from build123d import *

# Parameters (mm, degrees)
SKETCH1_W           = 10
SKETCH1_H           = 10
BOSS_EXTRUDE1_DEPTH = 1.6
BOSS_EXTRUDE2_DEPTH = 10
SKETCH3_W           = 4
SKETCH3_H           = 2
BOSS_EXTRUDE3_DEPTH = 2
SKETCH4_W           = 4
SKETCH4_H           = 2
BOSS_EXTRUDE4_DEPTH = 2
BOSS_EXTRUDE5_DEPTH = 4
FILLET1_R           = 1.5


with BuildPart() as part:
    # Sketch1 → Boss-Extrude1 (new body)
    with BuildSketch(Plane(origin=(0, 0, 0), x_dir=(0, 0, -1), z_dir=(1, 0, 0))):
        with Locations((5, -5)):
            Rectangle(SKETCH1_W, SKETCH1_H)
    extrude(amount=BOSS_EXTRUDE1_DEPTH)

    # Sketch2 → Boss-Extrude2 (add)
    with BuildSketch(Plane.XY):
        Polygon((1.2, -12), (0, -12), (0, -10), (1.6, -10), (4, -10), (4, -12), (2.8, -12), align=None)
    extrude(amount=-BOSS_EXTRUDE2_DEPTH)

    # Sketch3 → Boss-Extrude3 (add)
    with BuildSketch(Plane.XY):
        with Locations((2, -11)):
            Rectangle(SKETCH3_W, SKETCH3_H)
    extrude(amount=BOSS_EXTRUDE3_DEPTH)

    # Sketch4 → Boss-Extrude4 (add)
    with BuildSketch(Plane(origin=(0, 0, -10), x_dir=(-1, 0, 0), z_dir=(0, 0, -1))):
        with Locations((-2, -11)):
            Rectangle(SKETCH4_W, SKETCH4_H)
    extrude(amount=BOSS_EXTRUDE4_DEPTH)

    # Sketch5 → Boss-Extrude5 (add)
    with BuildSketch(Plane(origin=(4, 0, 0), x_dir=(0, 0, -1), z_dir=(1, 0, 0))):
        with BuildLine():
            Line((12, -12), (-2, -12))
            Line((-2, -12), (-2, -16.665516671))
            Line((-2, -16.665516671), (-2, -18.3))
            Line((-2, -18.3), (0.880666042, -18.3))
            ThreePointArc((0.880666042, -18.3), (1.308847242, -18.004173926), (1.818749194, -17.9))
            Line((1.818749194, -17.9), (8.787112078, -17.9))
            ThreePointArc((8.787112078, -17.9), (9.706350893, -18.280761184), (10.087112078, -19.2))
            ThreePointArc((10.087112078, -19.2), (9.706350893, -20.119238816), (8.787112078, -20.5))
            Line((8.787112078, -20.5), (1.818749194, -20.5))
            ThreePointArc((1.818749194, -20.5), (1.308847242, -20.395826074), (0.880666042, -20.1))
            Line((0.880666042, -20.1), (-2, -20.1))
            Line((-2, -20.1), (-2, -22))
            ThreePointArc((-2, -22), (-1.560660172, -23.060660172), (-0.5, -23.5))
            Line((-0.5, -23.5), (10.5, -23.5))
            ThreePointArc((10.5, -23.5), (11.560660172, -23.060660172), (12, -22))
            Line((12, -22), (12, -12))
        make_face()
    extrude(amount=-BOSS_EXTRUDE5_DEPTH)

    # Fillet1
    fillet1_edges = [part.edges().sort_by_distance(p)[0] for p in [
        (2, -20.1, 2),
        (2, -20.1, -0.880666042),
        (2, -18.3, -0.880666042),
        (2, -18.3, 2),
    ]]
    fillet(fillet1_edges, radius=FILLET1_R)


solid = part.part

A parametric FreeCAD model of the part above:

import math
import FreeCAD as App
import Part
import Sketcher


def edges_at(feature, points):
    """Names of the edges that pass closest to the given points."""
    edges = feature.Shape.Edges
    near = lambda p: min(range(len(edges)), key=lambda i: edges[i].distToShape(Part.Vertex(*p))[0])
    return sorted({f"Edge{near(p) + 1}" for p in points})

doc = App.newDocument("Part")
params = doc.addObject("Spreadsheet::Sheet", "Params")
for row, (alias, value) in enumerate([
    ("sketch1_width", "10 mm"),
    ("pad1_length", "1.6 mm"),
    ("sketch2_width", "4 mm"),
    ("sketch2_height", "2 mm"),
    ("pad2_length", "10 mm"),
    ("sketch3_width", "4 mm"),
    ("sketch3_height", "2 mm"),
    ("pad3_length", "2 mm"),
    ("sketch4_width", "4 mm"),
    ("sketch4_height", "2 mm"),
    ("pad4_length", "2 mm"),
    ("sketch5_radius", "1.3 mm"),
    ("sketch5_radius2", "1.5 mm"),
    ("sketch5_width", "10 mm"),
    ("sketch5_height", "14 mm"),
    ("sketch5_width2", "6.3 mm"),
    ("pad5_length", "4 mm"),
    ("fillet_radius", "1.5 mm"),
], start=1):
    params.set(f"A{row}", alias)
    params.set(f"B{row}", "=" + value)
    params.setAlias(f"B{row}", alias)

body = doc.addObject("PartDesign::Body", "Body")

# Sketch on YZ plane
sketch1 = body.newObject("Sketcher::SketchObject", "Sketch")
sketch1.AttachmentSupport = (doc.getObject("YZ_Plane"), [""])
sketch1.MapMode = "FlatFace"
sketch1.addGeometry([
    Part.LineSegment(App.Vector(0, 0, 0), App.Vector(-10, 0, 0)),
    Part.LineSegment(App.Vector(-10, 0, 0), App.Vector(-10, -10, 0)),
    Part.LineSegment(App.Vector(-10, -10, 0), App.Vector(0, -10, 0)),
    Part.LineSegment(App.Vector(0, -10, 0), App.Vector(0, 0, 0)),
], False)
sketch1.addConstraint([
    Sketcher.Constraint("Coincident", 0, 2, 1, 1),
    Sketcher.Constraint("Coincident", 1, 2, 2, 1),
    Sketcher.Constraint("Coincident", 2, 2, 3, 1),
    Sketcher.Constraint("Coincident", 3, 2, 0, 1),
    Sketcher.Constraint("Horizontal", 0),
    Sketcher.Constraint("Vertical", 1),
    Sketcher.Constraint("Horizontal", 2),
    Sketcher.Constraint("Vertical", 3),
    Sketcher.Constraint("Coincident", 3, 2, -1, 1),
    Sketcher.Constraint("Equal", 2, 1),
    Sketcher.Constraint("DistanceX", 0, 2, 0, 1, 10.0),
])
sketch1.setExpression("Constraints[10]", "Params.sketch1_width")
pad1 = body.newObject("PartDesign::Pad", "Pad")
pad1.Profile = sketch1
pad1.setExpression("Length", "Params.pad1_length")

# Sketch on XY plane
sketch2 = body.newObject("Sketcher::SketchObject", "Sketch001")
sketch2.AttachmentSupport = (doc.getObject("XY_Plane"), [""])
sketch2.MapMode = "FlatFace"
sketch2.addGeometry([
    Part.LineSegment(App.Vector(0, -12, 0), App.Vector(4, -12, 0)),
    Part.LineSegment(App.Vector(4, -12, 0), App.Vector(4, -10, 0)),
    Part.LineSegment(App.Vector(4, -10, 0), App.Vector(0, -10, 0)),
    Part.LineSegment(App.Vector(0, -10, 0), App.Vector(0, -12, 0)),
], False)
sketch2.addConstraint([
    Sketcher.Constraint("Coincident", 0, 2, 1, 1),
    Sketcher.Constraint("Coincident", 1, 2, 2, 1),
    Sketcher.Constraint("Coincident", 2, 2, 3, 1),
    Sketcher.Constraint("Coincident", 3, 2, 0, 1),
    Sketcher.Constraint("Horizontal", 0),
    Sketcher.Constraint("Vertical", 1),
    Sketcher.Constraint("Horizontal", 2),
    Sketcher.Constraint("Vertical", 3),
    Sketcher.Constraint("PointOnObject", 2, 2, -2),
    Sketcher.Constraint("DistanceX", 0, 1, 0, 2, 4.0),
    Sketcher.Constraint("DistanceY", 1, 1, 1, 2, 2.0),
    Sketcher.Constraint("DistanceY", 0, 2, -1, 1, 12.0),
])
sketch2.setExpression("Constraints[9]", "Params.sketch2_width")
sketch2.setExpression("Constraints[10]", "Params.sketch2_height")
pad2 = body.newObject("PartDesign::Pad", "Pad001")
pad2.Profile = sketch2
pad2.setExpression("Length", "Params.pad2_length")
pad2.Reversed = True

# Sketch on XY plane
sketch3 = body.newObject("Sketcher::SketchObject", "Sketch002")
sketch3.AttachmentSupport = (doc.getObject("XY_Plane"), [""])
sketch3.MapMode = "FlatFace"
sketch3.addGeometry([
    Part.LineSegment(App.Vector(0, -10, 0), App.Vector(0, -12, 0)),
    Part.LineSegment(App.Vector(0, -12, 0), App.Vector(4, -12, 0)),
    Part.LineSegment(App.Vector(4, -12, 0), App.Vector(4, -10, 0)),
    Part.LineSegment(App.Vector(4, -10, 0), App.Vector(0, -10, 0)),
], False)
sketch3.addConstraint([
    Sketcher.Constraint("Coincident", 0, 2, 1, 1),
    Sketcher.Constraint("Coincident", 1, 2, 2, 1),
    Sketcher.Constraint("Coincident", 2, 2, 3, 1),
    Sketcher.Constraint("Coincident", 3, 2, 0, 1),
    Sketcher.Constraint("Vertical", 0),
    Sketcher.Constraint("Horizontal", 1),
    Sketcher.Constraint("Vertical", 2),
    Sketcher.Constraint("Horizontal", 3),
    Sketcher.Constraint("PointOnObject", 0, 2, -2),
    Sketcher.Constraint("DistanceX", 1, 1, 1, 2, 4.0),
    Sketcher.Constraint("DistanceY", 0, 2, 0, 1, 2.0),
    Sketcher.Constraint("DistanceY", 0, 2, -1, 1, 12.0),
])
sketch3.setExpression("Constraints[9]", "Params.sketch3_width")
sketch3.setExpression("Constraints[10]", "Params.sketch3_height")
pad3 = body.newObject("PartDesign::Pad", "Pad002")
pad3.Profile = sketch3
pad3.setExpression("Length", "Params.pad3_length")

# Sketch on XY plane
sketch4 = body.newObject("Sketcher::SketchObject", "Sketch003")
sketch4.AttachmentSupport = (doc.getObject("XY_Plane"), [""])
sketch4.MapMode = "FlatFace"
sketch4.AttachmentOffset = App.Placement(App.Vector(0, 0, -10), App.Rotation())
sketch4.addGeometry([
    Part.LineSegment(App.Vector(4, -10, 0), App.Vector(4, -12, 0)),
    Part.LineSegment(App.Vector(4, -12, 0), App.Vector(0, -12, 0)),
    Part.LineSegment(App.Vector(0, -12, 0), App.Vector(0, -10, 0)),
    Part.LineSegment(App.Vector(0, -10, 0), App.Vector(4, -10, 0)),
], False)
sketch4.addConstraint([
    Sketcher.Constraint("Coincident", 0, 2, 1, 1),
    Sketcher.Constraint("Coincident", 1, 2, 2, 1),
    Sketcher.Constraint("Coincident", 2, 2, 3, 1),
    Sketcher.Constraint("Coincident", 3, 2, 0, 1),
    Sketcher.Constraint("Vertical", 0),
    Sketcher.Constraint("Horizontal", 1),
    Sketcher.Constraint("Vertical", 2),
    Sketcher.Constraint("Horizontal", 3),
    Sketcher.Constraint("PointOnObject", 1, 2, -2),
    Sketcher.Constraint("DistanceX", 1, 2, 1, 1, 4.0),
    Sketcher.Constraint("DistanceY", 0, 2, 0, 1, 2.0),
    Sketcher.Constraint("DistanceY", 0, 2, -1, 1, 12.0),
])
sketch4.setExpression("Constraints[9]", "Params.sketch4_width")
sketch4.setExpression("Constraints[10]", "Params.sketch4_height")
pad4 = body.newObject("PartDesign::Pad", "Pad003")
pad4.Profile = sketch4
pad4.setExpression("Length", "Params.pad4_length")
pad4.Reversed = True

# Sketch on YZ plane
sketch5 = body.newObject("Sketcher::SketchObject", "Sketch004")
sketch5.AttachmentSupport = (doc.getObject("YZ_Plane"), [""])
sketch5.MapMode = "FlatFace"
sketch5.AttachmentOffset = App.Placement(App.Vector(0, 0, 4), App.Rotation())
sketch5.addGeometry([
    Part.LineSegment(App.Vector(-12, -12, 0), App.Vector(-12, 2, 0)),  # 0
    Part.LineSegment(App.Vector(-12, 2, 0), App.Vector(-18.3, 2, 0)),  # 1
    Part.LineSegment(App.Vector(-18.3, 2, 0), App.Vector(-18.3, -0.9, 0)),  # 2
    Part.ArcOfCircle(Part.Circle(App.Vector(-19.2, -1.8, 0), App.Vector(0, 0, 1), 1.3), math.radians(0), math.radians(46)),  # 3
    Part.LineSegment(App.Vector(-17.9, -1.8, 0), App.Vector(-17.9, -8.8, 0)),  # 4
    Part.ArcOfCircle(Part.Circle(App.Vector(-19.2, -8.8, 0), App.Vector(0, 0, 1), 1.3), math.radians(-90), math.radians(0)),  # 5
    Part.ArcOfCircle(Part.Circle(App.Vector(-19.2, -8.8, 0), App.Vector(0, 0, 1), 1.3), math.radians(180), math.radians(270)),  # 6
    Part.LineSegment(App.Vector(-20.5, -8.8, 0), App.Vector(-20.5, -1.8, 0)),  # 7
    Part.ArcOfCircle(Part.Circle(App.Vector(-19.2, -1.8, 0), App.Vector(0, 0, 1), 1.3), math.radians(134), math.radians(180)),  # 8
    Part.LineSegment(App.Vector(-20.1, -0.9, 0), App.Vector(-20.1, 2, 0)),  # 9
    Part.LineSegment(App.Vector(-20.1, 2, 0), App.Vector(-22, 2, 0)),  # 10
    Part.ArcOfCircle(Part.Circle(App.Vector(-22, 0.5, 0), App.Vector(0, 0, 1), 1.5), math.radians(90), math.radians(180)),  # 11
    Part.LineSegment(App.Vector(-23.5, 0.5, 0), App.Vector(-23.5, -10.5, 0)),  # 12
    Part.ArcOfCircle(Part.Circle(App.Vector(-22, -10.5, 0), App.Vector(0, 0, 1), 1.5), math.radians(180), math.radians(270)),  # 13
    Part.LineSegment(App.Vector(-22, -12, 0), App.Vector(-12, -12, 0)),  # 14
], False)
sketch5.addConstraint([
    Sketcher.Constraint("Coincident", 0, 2, 1, 1),
    Sketcher.Constraint("Coincident", 1, 2, 2, 1),
    Sketcher.Constraint("Coincident", 2, 2, 3, 2),
    Sketcher.Constraint("Tangent", 3, 1, 4, 1),
    Sketcher.Constraint("Tangent", 4, 2, 5, 2),
    Sketcher.Constraint("Tangent", 5, 1, 6, 2),
    Sketcher.Constraint("Tangent", 6, 1, 7, 1),
    Sketcher.Constraint("Tangent", 7, 2, 8, 2),
    Sketcher.Constraint("Coincident", 8, 1, 9, 1),
    Sketcher.Constraint("Coincident", 9, 2, 10, 1),
    Sketcher.Constraint("Tangent", 10, 2, 11, 1),
    Sketcher.Constraint("Tangent", 11, 2, 12, 1),
    Sketcher.Constraint("Tangent", 12, 2, 13, 1),
    Sketcher.Constraint("Tangent", 13, 2, 14, 1),
    Sketcher.Constraint("Coincident", 14, 2, 0, 1),
    Sketcher.Constraint("Vertical", 0),
    Sketcher.Constraint("Horizontal", 1),
    Sketcher.Constraint("Vertical", 2),
    Sketcher.Constraint("Vertical", 4),
    Sketcher.Constraint("Vertical", 7),
    Sketcher.Constraint("Vertical", 9),
    Sketcher.Constraint("Horizontal", 10),
    Sketcher.Constraint("Vertical", 12),
    Sketcher.Constraint("Horizontal", 14),
    Sketcher.Constraint("Coincident", 8, 3, 3, 3),
    Sketcher.Constraint("Equal", 3, 5),
    Sketcher.Constraint("Equal", 5, 6),
    Sketcher.Constraint("Equal", 11, 13),
    Sketcher.Constraint("Horizontal", 2, 2, 8, 1),
    Sketcher.Constraint("Horizontal", 1, 2, 9, 2),
    Sketcher.Constraint("Vertical", 8, 3, 5, 1),
    Sketcher.Constraint("Radius", 3, 1.3),
    Sketcher.Constraint("Radius", 11, 1.5),
    Sketcher.Constraint("DistanceX", 14, 1, 14, 2, 10.0),
    Sketcher.Constraint("DistanceY", 0, 1, 0, 2, 14.0),
    Sketcher.Constraint("DistanceX", 1, 2, 1, 1, 6.3),
    Sketcher.Constraint("DistanceX", 10, 2, 10, 1, 1.9),
    Sketcher.Constraint("DistanceX", 11, 3, -1, 1, 22.0),
    Sketcher.Constraint("DistanceY", -1, 1, 0, 2, 2.0),
    Sketcher.Constraint("DistanceY", 2, 2, 2, 1, 2.880666),
    Sketcher.Constraint("DistanceY", 4, 2, 4, 1, 6.968363),
])
sketch5.setExpression("Constraints[31]", "Params.sketch5_radius")
sketch5.setExpression("Constraints[32]", "Params.sketch5_radius2")
sketch5.setExpression("Constraints[33]", "Params.sketch5_width")
sketch5.setExpression("Constraints[34]", "Params.sketch5_height")
sketch5.setExpression("Constraints[35]", "Params.sketch5_width2")
pad5 = body.newObject("PartDesign::Pad", "Pad004")
pad5.Profile = sketch5
pad5.setExpression("Length", "Params.pad5_length")
pad5.Reversed = True
doc.recompute()

fillet = body.newObject("PartDesign::Fillet", "Fillet")
fillet.Base = (pad5, edges_at(pad5, [
    (2, -20.1, 2),
    (2, -20.1, -0.881),
    (2, -18.3, -0.881),
    (2, -18.3, 2),
]))
fillet.setExpression("Radius", "Params.fillet_radius")

doc.recompute()
